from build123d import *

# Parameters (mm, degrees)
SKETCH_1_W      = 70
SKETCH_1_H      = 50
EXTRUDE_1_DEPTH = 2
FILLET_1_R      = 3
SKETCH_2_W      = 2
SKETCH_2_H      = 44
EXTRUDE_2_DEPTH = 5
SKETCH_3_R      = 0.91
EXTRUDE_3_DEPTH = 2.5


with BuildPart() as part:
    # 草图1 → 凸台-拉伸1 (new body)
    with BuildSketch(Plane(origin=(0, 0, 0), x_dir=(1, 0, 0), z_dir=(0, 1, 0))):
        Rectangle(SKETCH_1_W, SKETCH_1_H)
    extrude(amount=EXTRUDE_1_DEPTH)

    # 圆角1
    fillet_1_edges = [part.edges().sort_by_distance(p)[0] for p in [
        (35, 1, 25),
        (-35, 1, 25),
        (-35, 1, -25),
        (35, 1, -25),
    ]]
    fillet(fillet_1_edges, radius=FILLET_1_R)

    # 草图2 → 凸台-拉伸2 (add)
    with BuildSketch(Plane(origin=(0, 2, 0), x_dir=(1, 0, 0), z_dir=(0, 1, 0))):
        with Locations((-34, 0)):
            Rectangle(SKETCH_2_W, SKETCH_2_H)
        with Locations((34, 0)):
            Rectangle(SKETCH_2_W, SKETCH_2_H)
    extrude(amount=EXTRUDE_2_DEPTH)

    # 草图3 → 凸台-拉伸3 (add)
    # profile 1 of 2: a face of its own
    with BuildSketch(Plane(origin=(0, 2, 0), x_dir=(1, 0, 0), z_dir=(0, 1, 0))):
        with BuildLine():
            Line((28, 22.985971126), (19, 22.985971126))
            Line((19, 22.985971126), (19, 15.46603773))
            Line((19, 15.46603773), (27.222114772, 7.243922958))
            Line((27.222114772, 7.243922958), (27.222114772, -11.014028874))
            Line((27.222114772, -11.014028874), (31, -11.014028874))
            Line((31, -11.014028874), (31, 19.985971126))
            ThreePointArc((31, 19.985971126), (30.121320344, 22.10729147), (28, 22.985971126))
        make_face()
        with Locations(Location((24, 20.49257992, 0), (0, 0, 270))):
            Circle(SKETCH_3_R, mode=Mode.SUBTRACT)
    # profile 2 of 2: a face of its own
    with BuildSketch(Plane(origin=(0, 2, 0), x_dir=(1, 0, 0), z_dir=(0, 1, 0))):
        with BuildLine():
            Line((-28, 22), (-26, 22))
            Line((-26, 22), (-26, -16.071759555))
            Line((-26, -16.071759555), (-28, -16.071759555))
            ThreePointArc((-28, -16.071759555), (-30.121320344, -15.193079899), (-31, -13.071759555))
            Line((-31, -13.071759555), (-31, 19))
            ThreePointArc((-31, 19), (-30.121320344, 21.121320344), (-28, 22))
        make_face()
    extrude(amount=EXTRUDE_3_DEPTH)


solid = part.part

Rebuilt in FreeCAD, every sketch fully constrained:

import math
import FreeCAD as App
import Part
import Sketcher
Q = App.Units.Quantity


def edges_at(feature, points):
    """Names of the edges that pass closest to the given points."""
    edges = feature.Shape.Edges
    near = lambda p: min(range(len(edges)), key=lambda i: edges[i].distToShape(Part.Vertex(*p))[0])
    return sorted({f"Edge{near(p) + 1}" for p in points})

doc = App.newDocument("Part")
body = doc.addObject("PartDesign::Body", "Body")

sketch1 = body.newObject("Sketcher::SketchObject", "Sketch")
sketch1.AttachmentSupport = (doc.getObject("XZ_Plane"), [""])
sketch1.MapMode = "FlatFace"
sketch1.addGeometry([
    Part.LineSegment(App.Vector(-35, -25, 0), App.Vector(-35, 25, 0)),
    Part.LineSegment(App.Vector(-35, 25, 0), App.Vector(35, 25, 0)),
    Part.LineSegment(App.Vector(35, 25, 0), App.Vector(35, -25, 0)),
    Part.LineSegment(App.Vector(35, -25, 0), App.Vector(-35, -25, 0)),
], False)
sketch1.addConstraint([
    Sketcher.Constraint("Coincident", 0, 2, 1, 1),
    Sketcher.Constraint("Coincident", 1, 2, 2, 1),
    Sketcher.Constraint("Coincident", 2, 2, 3, 1),
    Sketcher.Constraint("Coincident", 3, 2, 0, 1),
    Sketcher.Constraint("Vertical", 0),
    Sketcher.Constraint("Horizontal", 1),
    Sketcher.Constraint("Vertical", 2),
    Sketcher.Constraint("Horizontal", 3),
    Sketcher.Constraint("Symmetric", 0, 2, 2, 2, -1, 1),
    Sketcher.Constraint("DistanceX", 1, 1, 1, 2, Q("70 mm")),
    Sketcher.Constraint("DistanceY", 0, 1, 0, 2, Q("50 mm")),
])
pad1 = body.newObject("PartDesign::Pad", "Pad")
pad1.Profile = sketch1
pad1.Length = 2
pad1.Reversed = True
doc.recompute()

fillet = body.newObject("PartDesign::Fillet", "Fillet")
fillet.Base = (pad1, edges_at(pad1, [
    (35, 1, 25),
    (-35, 1, 25),
    (-35, 1, -25),
    (35, 1, -25),
]))
fillet.Radius = 3

sketch2 = body.newObject("Sketcher::SketchObject", "Sketch001")
sketch2.AttachmentSupport = (doc.getObject("XZ_Plane"), [""])
sketch2.MapMode = "FlatFace"
sketch2.AttachmentOffset = App.Placement(App.Vector(0, 0, -2), App.Rotation())
sketch2.addGeometry([
    Part.LineSegment(App.Vector(-35, -22, 0), App.Vector(-35, 22, 0)),
    Part.LineSegment(App.Vector(-35, 22, 0), App.Vector(-33, 22, 0)),
    Part.LineSegment(App.Vector(-33, 22, 0), App.Vector(-33, -22, 0)),
    Part.LineSegment(App.Vector(-33, -22, 0), App.Vector(-35, -22, 0)),
    Part.LineSegment(App.Vector(33, -22, 0), App.Vector(33, 22, 0)),
    Part.LineSegment(App.Vector(33, 22, 0), App.Vector(35, 22, 0)),
    Part.LineSegment(App.Vector(35, 22, 0), App.Vector(35, -22, 0)),
    Part.LineSegment(App.Vector(35, -22, 0), App.Vector(33, -22, 0)),
], False)
sketch2.addConstraint([
    Sketcher.Constraint("Coincident", 0, 2, 1, 1),
    Sketcher.Constraint("Coincident", 1, 2, 2, 1),
    Sketcher.Constraint("Coincident", 2, 2, 3, 1),
    Sketcher.Constraint("Coincident", 3, 2, 0, 1),
    Sketcher.Constraint("Coincident", 4, 2, 5, 1),
    Sketcher.Constraint("Coincident", 5, 2, 6, 1),
    Sketcher.Constraint("Coincident", 6, 2, 7, 1),
    Sketcher.Constraint("Coincident", 7, 2, 4, 1),
    Sketcher.Constraint("Vertical", 0),
    Sketcher.Constraint("Horizontal", 1),
    Sketcher.Constraint("Vertical", 2),
    Sketcher.Constraint("Horizontal", 3),
    Sketcher.Constraint("Vertical", 4),
    Sketcher.Constraint("Horizontal", 5),
    Sketcher.Constraint("Vertical", 6),
    Sketcher.Constraint("Horizontal", 7),
    Sketcher.Constraint("Symmetric", 2, 2, 4, 2, -1, 1),
    Sketcher.Constraint("Symmetric", 0, 2, 6, 2, -1, 1),
    Sketcher.Constraint("Horizontal", 1, 2, 4, 2),
    Sketcher.Constraint("DistanceX", 1, 1, 1, 2, Q("2 mm")),
    Sketcher.Constraint("DistanceY", 0, 1, 0, 2, Q("44 mm")),
    Sketcher.Constraint("DistanceX", 0, 2, -1, 1, Q("35 mm")),
])
pad2 = body.newObject("PartDesign::Pad", "Pad001")
pad2.Profile = sketch2
pad2.Length = 5
pad2.Reversed = True

sketch3 = body.newObject("Sketcher::SketchObject", "Sketch002")
sketch3.AttachmentSupport = (doc.getObject("XZ_Plane"), [""])
sketch3.MapMode = "FlatFace"
sketch3.AttachmentOffset = App.Placement(App.Vector(0, 0, -2), App.Rotation())
sketch3.addGeometry([
    Part.LineSegment(App.Vector(28, -23, 0), App.Vector(19, -23, 0)),
    Part.LineSegment(App.Vector(19, -23, 0), App.Vector(19, -15.5, 0)),
    Part.LineSegment(App.Vector(19, -15.5, 0), App.Vector(27.2, -7.2, 0)),
    Part.LineSegment(App.Vector(27.2, -7.2, 0), App.Vector(27.2, 11, 0)),
    Part.LineSegment(App.Vector(27.2, 11, 0), App.Vector(31, 11, 0)),
    Part.LineSegment(App.Vector(31, 11, 0), App.Vector(31, -20, 0)),
    Part.ArcOfCircle(Part.Circle(App.Vector(28, -20, 0), App.Vector(0, 0, 1), 3), math.radians(-90), math.radians(0)),
    Part.Circle(App.Vector(24, -20.5, 0), App.Vector(0, 0, 1), 0.9),
    Part.LineSegment(App.Vector(-26, -22, 0), App.Vector(-28, -22, 0)),
    Part.ArcOfCircle(Part.Circle(App.Vector(-28, -19, 0), App.Vector(0, 0, 1), 3), math.radians(180), math.radians(270)),
    Part.LineSegment(App.Vector(-31, -19, 0), App.Vector(-31, 13.1, 0)),
    Part.ArcOfCircle(Part.Circle(App.Vector(-28, 13.1, 0), App.Vector(0, 0, 1), 3), math.radians(90), math.radians(180)),
    Part.LineSegment(App.Vector(-28, 16.1, 0), App.Vector(-26, 16.1, 0)),
    Part.LineSegment(App.Vector(-26, 16.1, 0), App.Vector(-26, -22, 0)),
], False)
sketch3.addConstraint([
    Sketcher.Constraint("Coincident", 0, 2, 1, 1),
    Sketcher.Constraint("Coincident", 1, 2, 2, 1),
    Sketcher.Constraint("Coincident", 2, 2, 3, 1),
    Sketcher.Constraint("Coincident", 3, 2, 4, 1),
    Sketcher.Constraint("Coincident", 4, 2, 5, 1),
    Sketcher.Constraint("Tangent", 5, 2, 6, 2),
    Sketcher.Constraint("Tangent", 6, 1, 0, 1),
    Sketcher.Constraint("Tangent", 8, 2, 9, 2),
    Sketcher.Constraint("Tangent", 9, 1, 10, 1),
    Sketcher.Constraint("Tangent", 10, 2, 11, 2),
    Sketcher.Constraint("Tangent", 11, 1, 12, 1),
    Sketcher.Constraint("Coincident", 12, 2, 13, 1),
    Sketcher.Constraint("Coincident", 13, 2, 8, 1),
    Sketcher.Constraint("Horizontal", 0),
    Sketcher.Constraint("Vertical", 1),
    Sketcher.Constraint("Vertical", 3),
    Sketcher.Constraint("Horizontal", 4),
    Sketcher.Constraint("Vertical", 5),
    Sketcher.Constraint("Horizontal", 8),
    Sketcher.Constraint("Vertical", 10),
    Sketcher.Constraint("Horizontal", 12),
    Sketcher.Constraint("Vertical", 13),
    Sketcher.Constraint("Equal", 6, 9),
    Sketcher.Constraint("Equal", 9, 11),
    Sketcher.Constraint("Radius", 6, Q("3 mm")),
    Sketcher.Constraint("Diameter", 7, Q("1.82 mm")),
    Sketcher.Constraint("DistanceX", 0, 2, 0, 1, Q("9 mm")),
    Sketcher.Constraint("DistanceX", 8, 2, 8, 1, Q("2 mm")),
    Sketcher.Constraint("DistanceY", 5, 2, 5, 1, Q("31 mm")),
    Sketcher.Constraint("Angle", 2, Q("45 deg")),
    Sketcher.Constraint("DistanceX", -1, 1, 6, 3, Q("28 mm")),
    Sketcher.Constraint("DistanceX", -1, 1, 7, 3, Q("24 mm")),
    Sketcher.Constraint("DistanceX", 9, 3, -1, 1, Q("28 mm")),
    Sketcher.Constraint("DistanceY", 9, 3, -1, 1, Q("19 mm")),
    Sketcher.Constraint("DistanceY", 3, 1, 3, 2, Q("18.257952 mm")),
    Sketcher.Constraint("DistanceY", 10, 1, 10, 2, Q("32.07176 mm")),
    Sketcher.Constraint("DistanceX", 4, 1, 4, 2, Q("3.777885 mm")),
    Sketcher.Constraint("DistanceY", 6, 3, -1, 1, Q("19.985971 mm")),
    Sketcher.Constraint("DistanceY", 7, 3, -1, 1, Q("20.49258 mm")),
])
pad3 = body.newObject("PartDesign::Pad", "Pad002")
pad3.Profile = sketch3
pad3.Length = 2.5
pad3.Reversed = True

doc.recompute()
